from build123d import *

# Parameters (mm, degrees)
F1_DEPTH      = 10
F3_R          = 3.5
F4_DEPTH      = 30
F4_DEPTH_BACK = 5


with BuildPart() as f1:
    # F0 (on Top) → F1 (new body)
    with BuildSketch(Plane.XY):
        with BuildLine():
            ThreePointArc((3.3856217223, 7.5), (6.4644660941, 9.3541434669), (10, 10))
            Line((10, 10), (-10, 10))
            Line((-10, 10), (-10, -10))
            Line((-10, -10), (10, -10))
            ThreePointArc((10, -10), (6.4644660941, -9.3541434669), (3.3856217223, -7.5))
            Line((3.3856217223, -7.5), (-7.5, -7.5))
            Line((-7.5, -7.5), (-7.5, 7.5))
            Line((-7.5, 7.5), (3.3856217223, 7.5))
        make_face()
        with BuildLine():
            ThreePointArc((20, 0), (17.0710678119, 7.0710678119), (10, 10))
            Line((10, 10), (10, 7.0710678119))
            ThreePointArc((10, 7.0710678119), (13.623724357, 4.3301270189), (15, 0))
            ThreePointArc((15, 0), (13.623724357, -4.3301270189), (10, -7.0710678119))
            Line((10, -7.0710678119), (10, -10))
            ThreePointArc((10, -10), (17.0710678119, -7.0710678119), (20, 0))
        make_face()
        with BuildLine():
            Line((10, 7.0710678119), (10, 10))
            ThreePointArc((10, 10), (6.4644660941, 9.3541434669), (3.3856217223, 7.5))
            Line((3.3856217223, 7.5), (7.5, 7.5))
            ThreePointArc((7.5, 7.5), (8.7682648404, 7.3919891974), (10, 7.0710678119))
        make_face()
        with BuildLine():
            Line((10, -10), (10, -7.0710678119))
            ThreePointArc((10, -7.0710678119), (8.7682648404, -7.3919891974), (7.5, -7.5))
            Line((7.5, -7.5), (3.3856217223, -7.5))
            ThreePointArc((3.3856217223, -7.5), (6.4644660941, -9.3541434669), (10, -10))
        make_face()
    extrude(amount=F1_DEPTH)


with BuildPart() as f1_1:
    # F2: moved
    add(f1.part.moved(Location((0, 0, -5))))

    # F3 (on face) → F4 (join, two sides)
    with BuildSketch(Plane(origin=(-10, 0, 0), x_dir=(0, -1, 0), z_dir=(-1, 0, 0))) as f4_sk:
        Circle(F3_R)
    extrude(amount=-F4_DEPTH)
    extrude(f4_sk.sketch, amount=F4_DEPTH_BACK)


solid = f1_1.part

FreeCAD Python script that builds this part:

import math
import FreeCAD as App
import Part
import Sketcher
Q = App.Units.Quantity

doc = App.newDocument("Part")
body = doc.addObject("PartDesign::Body", "Body")

# Sketch on XY plane
sketch1 = body.newObject("Sketcher::SketchObject", "Sketch")
sketch1.AttachmentSupport = (doc.getObject("XY_Plane"), [""])
sketch1.MapMode = "FlatFace"
sketch1.addGeometry(Part.LineSegment(App.Vector(-10, -10, 0), App.Vector(10, -10, 0)), False)
sketch1.addGeometry(Part.ArcOfCircle(Part.Circle(App.Vector(10, 0, 0), App.Vector(0, 0, 1), 10), math.radians(-90), math.radians(0)), False)
sketch1.addGeometry(Part.ArcOfCircle(Part.Circle(App.Vector(10, 0, 0), App.Vector(0, 0, 1), 10), math.radians(0), math.radians(90)), False)
sketch1.addGeometry(Part.LineSegment(App.Vector(10, 10, 0), App.Vector(-10, 10, 0)), False)
sketch1.addGeometry(Part.LineSegment(App.Vector(-10, 10, 0), App.Vector(-10, -10, 0)), False)
sketch1.addGeometry(Part.ArcOfCircle(Part.Circle(App.Vector(7.5, 0, 0), App.Vector(0, 0, 1), 7.5), math.radians(-71), math.radians(0)), False)
sketch1.addGeometry(Part.ArcOfCircle(Part.Circle(App.Vector(7.5, 0, 0), App.Vector(0, 0, 1), 7.5), math.radians(-90), math.radians(-70.53)), False)
sketch1.addGeometry(Part.LineSegment(App.Vector(7.5, -7.5, 0), App.Vector(-7.5, -7.5, 0)), False)
sketch1.addGeometry(Part.LineSegment(App.Vector(-7.5, -7.5, 0), App.Vector(-7.5, 7.5, 0)), False)
sketch1.addGeometry(Part.LineSegment(App.Vector(-7.5, 7.5, 0), App.Vector(7.5, 7.5, 0)), False)
sketch1.addGeometry(Part.ArcOfCircle(Part.Circle(App.Vector(7.5, 0, 0), App.Vector(0, 0, 1), 7.5), math.radians(70.53), math.radians(90)), False)
sketch1.addGeometry(Part.ArcOfCircle(Part.Circle(App.Vector(7.5, 0, 0), App.Vector(0, 0, 1), 7.5), math.radians(0), math.radians(71)), False)
sketch1.addConstraint(Sketcher.Constraint("Tangent", 0, 2, 1, 1))
sketch1.addConstraint(Sketcher.Constraint("Tangent", 1, 2, 2, 1))
sketch1.addConstraint(Sketcher.Constraint("Tangent", 2, 2, 3, 1))
sketch1.addConstraint(Sketcher.Constraint("Coincident", 3, 2, 4, 1))
sketch1.addConstraint(Sketcher.Constraint("Coincident", 4, 2, 0, 1))
sketch1.addConstraint(Sketcher.Constraint("Tangent", 5, 1, 6, 2))
sketch1.addConstraint(Sketcher.Constraint("Tangent", 6, 1, 7, 1))
sketch1.addConstraint(Sketcher.Constraint("Coincident", 7, 2, 8, 1))
sketch1.addConstraint(Sketcher.Constraint("Coincident", 8, 2, 9, 1))
sketch1.addConstraint(Sketcher.Constraint("Tangent", 9, 2, 10, 2))
sketch1.addConstraint(Sketcher.Constraint("Tangent", 10, 1, 11, 2))
sketch1.addConstraint(Sketcher.Constraint("Tangent", 11, 1, 5, 2))
sketch1.addConstraint(Sketcher.Constraint("Horizontal", 0))
sketch1.addConstraint(Sketcher.Constraint("Horizontal", 3))
sketch1.addConstraint(Sketcher.Constraint("Vertical", 4))
sketch1.addConstraint(Sketcher.Constraint("Horizontal", 7))
sketch1.addConstraint(Sketcher.Constraint("Vertical", 8))
sketch1.addConstraint(Sketcher.Constraint("Horizontal", 9))
sketch1.addConstraint(Sketcher.Constraint("Coincident", 10, 3, 5, 3))
sketch1.addConstraint(Sketcher.Constraint("Equal", 1, 2))
sketch1.addConstraint(Sketcher.Constraint("Equal", 5, 6))
sketch1.addConstraint(Sketcher.Constraint("Symmetric", 0, 2, 3, 2, -1, 1))
sketch1.addConstraint(Sketcher.Constraint("Symmetric", 6, 1, 8, 2, -1, 1))
sketch1.addConstraint(Sketcher.Constraint("PointOnObject", 1, 2, -1))
sketch1.addConstraint(Sketcher.Constraint("PointOnObject", 11, 1, -1))
sketch1.addConstraint(Sketcher.Constraint("Vertical", 2, 2, 5, 1))
sketch1.addConstraint(Sketcher.Constraint("Vertical", 5, 1, 10, 1))
sketch1.addConstraint(Sketcher.Constraint("Equal", 3, 4))
sketch1.addConstraint(Sketcher.Constraint("Equal", 9, 8))
sketch1.addConstraint(Sketcher.Constraint("Radius", 1, Q("10 mm")))
sketch1.addConstraint(Sketcher.Constraint("Radius", 5, Q("7.5 mm")))
pad1 = body.newObject("PartDesign::Pad", "Pad")
pad1.Profile = sketch1
pad1.Length = 10
body2 = doc.addObject("PartDesign::Body", "Body001")
doc.recompute()

body.Placement = App.Placement(App.Vector(0, 0, -5), App.Rotation(App.Vector(0, 0, 1), 0))
boolean = body2.newObject("PartDesign::Boolean", "Boolean")
boolean.Type = "Fuse"
boolean.addObjects([body])

# Sketch on YZ plane
sketch2 = body2.newObject("Sketcher::SketchObject", "Sketch001")
sketch2.AttachmentSupport = (doc.getObject("YZ_Plane001"), [""])
sketch2.MapMode = "FlatFace"
sketch2.AttachmentOffset = App.Placement(App.Vector(0, 0, -10), App.Rotation())
sketch2.addGeometry(Part.Circle(App.Vector(0, 0, 0), App.Vector(0, 0, 1), 3.5), False)
sketch2.addConstraint(Sketcher.Constraint("Coincident", 0, 3, -1, 1))
sketch2.addConstraint(Sketcher.Constraint("Diameter", 0, Q("7 mm")))
pad2 = body2.newObject("PartDesign::Pad", "Pad001")
pad2.Profile = sketch2
pad2.Type = "TwoLengths"
pad2.Length = 30
pad2.Length2 = 5

doc.recompute()
